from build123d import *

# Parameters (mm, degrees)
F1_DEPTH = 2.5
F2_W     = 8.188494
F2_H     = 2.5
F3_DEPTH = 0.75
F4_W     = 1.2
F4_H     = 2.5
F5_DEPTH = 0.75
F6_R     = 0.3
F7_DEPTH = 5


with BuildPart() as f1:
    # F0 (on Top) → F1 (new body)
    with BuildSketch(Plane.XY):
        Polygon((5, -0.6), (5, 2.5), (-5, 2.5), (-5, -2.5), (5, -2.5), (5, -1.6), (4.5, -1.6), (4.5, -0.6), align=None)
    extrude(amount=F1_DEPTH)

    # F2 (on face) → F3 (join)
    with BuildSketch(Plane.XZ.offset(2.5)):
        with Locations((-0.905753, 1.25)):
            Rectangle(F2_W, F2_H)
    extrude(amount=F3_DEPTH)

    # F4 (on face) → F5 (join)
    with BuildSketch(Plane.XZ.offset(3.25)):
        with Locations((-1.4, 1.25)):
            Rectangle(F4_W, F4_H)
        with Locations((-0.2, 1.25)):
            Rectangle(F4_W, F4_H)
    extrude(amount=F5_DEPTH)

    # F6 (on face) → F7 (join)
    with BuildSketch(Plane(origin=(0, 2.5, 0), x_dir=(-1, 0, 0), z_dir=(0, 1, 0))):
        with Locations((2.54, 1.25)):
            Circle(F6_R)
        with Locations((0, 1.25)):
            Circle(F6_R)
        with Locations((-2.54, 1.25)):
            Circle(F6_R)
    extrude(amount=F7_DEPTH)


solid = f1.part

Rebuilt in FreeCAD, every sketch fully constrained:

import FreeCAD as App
import Part
import Sketcher
Q = App.Units.Quantity

doc = App.newDocument("Part")
body = doc.addObject("PartDesign::Body", "Body")

sketch1 = body.newObject("Sketcher::SketchObject", "Sketch")
sketch1.AttachmentSupport = (doc.getObject("XY_Plane"), [""])
sketch1.MapMode = "FlatFace"
sketch1.addGeometry(Part.LineSegment(App.Vector(5, -0.6, 0), App.Vector(5, 2.5, 0)), False)
sketch1.addGeometry(Part.LineSegment(App.Vector(5, 2.5, 0), App.Vector(-5, 2.5, 0)), False)
sketch1.addGeometry(Part.LineSegment(App.Vector(-5, 2.5, 0), App.Vector(-5, -2.5, 0)), False)
sketch1.addGeometry(Part.LineSegment(App.Vector(-5, -2.5, 0), App.Vector(5, -2.5, 0)), False)
sketch1.addGeometry(Part.LineSegment(App.Vector(5, -2.5, 0), App.Vector(5, -1.6, 0)), False)
sketch1.addGeometry(Part.LineSegment(App.Vector(5, -1.6, 0), App.Vector(4.5, -1.6, 0)), False)
sketch1.addGeometry(Part.LineSegment(App.Vector(4.5, -1.6, 0), App.Vector(4.5, -0.6, 0)), False)
sketch1.addGeometry(Part.LineSegment(App.Vector(4.5, -0.6, 0), App.Vector(5, -0.6, 0)), False)
sketch1.addConstraint(Sketcher.Constraint("Coincident", 0, 2, 1, 1))
sketch1.addConstraint(Sketcher.Constraint("Coincident", 1, 2, 2, 1))
sketch1.addConstraint(Sketcher.Constraint("Coincident", 2, 2, 3, 1))
sketch1.addConstraint(Sketcher.Constraint("Coincident", 3, 2, 4, 1))
sketch1.addConstraint(Sketcher.Constraint("Coincident", 4, 2, 5, 1))
sketch1.addConstraint(Sketcher.Constraint("Coincident", 5, 2, 6, 1))
sketch1.addConstraint(Sketcher.Constraint("Coincident", 6, 2, 7, 1))
sketch1.addConstraint(Sketcher.Constraint("Coincident", 7, 2, 0, 1))
sketch1.addConstraint(Sketcher.Constraint("Vertical", 0))
sketch1.addConstraint(Sketcher.Constraint("Horizontal", 1))
sketch1.addConstraint(Sketcher.Constraint("Vertical", 2))
sketch1.addConstraint(Sketcher.Constraint("Horizontal", 3))
sketch1.addConstraint(Sketcher.Constraint("Vertical", 4))
sketch1.addConstraint(Sketcher.Constraint("Horizontal", 5))
sketch1.addConstraint(Sketcher.Constraint("Vertical", 6))
sketch1.addConstraint(Sketcher.Constraint("Horizontal", 7))
sketch1.addConstraint(Sketcher.Constraint("Symmetric", 0, 2, 2, 2, -1, 1))
sketch1.addConstraint(Sketcher.Constraint("Vertical", 0, 2, 3, 2))
sketch1.addConstraint(Sketcher.Constraint("DistanceX", 1, 2, 1, 1, Q("10 mm")))
sketch1.addConstraint(Sketcher.Constraint("DistanceY", 2, 2, 2, 1, Q("5 mm")))
sketch1.addConstraint(Sketcher.Constraint("DistanceY", 6, 1, 6, 2, Q("1 mm")))
sketch1.addConstraint(Sketcher.Constraint("DistanceX", 5, 2, 5, 1, Q("0.5 mm")))
sketch1.addConstraint(Sketcher.Constraint("DistanceY", 0, 1, 0, 2, Q("3.1 mm")))
pad1 = body.newObject("PartDesign::Pad", "Pad")
pad1.Profile = sketch1
pad1.Length = 2.5

sketch2 = body.newObject("Sketcher::SketchObject", "Sketch001")
sketch2.AttachmentSupport = (doc.getObject("XZ_Plane"), [""])
sketch2.MapMode = "FlatFace"
sketch2.AttachmentOffset = App.Placement(App.Vector(0, 0, 2.5), App.Rotation())
sketch2.addGeometry(Part.LineSegment(App.Vector(-5, 2.5, 0), App.Vector(-5, 0, 0)), False)
sketch2.addGeometry(Part.LineSegment(App.Vector(-5, 0, 0), App.Vector(3.2, 0, 0)), False)
sketch2.addGeometry(Part.LineSegment(App.Vector(3.2, 0, 0), App.Vector(3.2, 2.5, 0)), False)
sketch2.addGeometry(Part.LineSegment(App.Vector(3.2, 2.5, 0), App.Vector(-5, 2.5, 0)), False)
sketch2.addConstraint(Sketcher.Constraint("Coincident", 0, 2, 1, 1))
sketch2.addConstraint(Sketcher.Constraint("Coincident", 1, 2, 2, 1))
sketch2.addConstraint(Sketcher.Constraint("Coincident", 2, 2, 3, 1))
sketch2.addConstraint(Sketcher.Constraint("Coincident", 3, 2, 0, 1))
sketch2.addConstraint(Sketcher.Constraint("Vertical", 0))
sketch2.addConstraint(Sketcher.Constraint("Horizontal", 1))
sketch2.addConstraint(Sketcher.Constraint("Vertical", 2))
sketch2.addConstraint(Sketcher.Constraint("Horizontal", 3))
sketch2.addConstraint(Sketcher.Constraint("PointOnObject", 0, 2, -1))
sketch2.addConstraint(Sketcher.Constraint("DistanceY", 0, 2, 0, 1, Q("2.5 mm")))
sketch2.addConstraint(Sketcher.Constraint("DistanceX", 0, 2, -1, 1, Q("5 mm")))
sketch2.addConstraint(Sketcher.Constraint("DistanceX", 1, 1, 1, 2, Q("8.188494 mm")))
pad2 = body.newObject("PartDesign::Pad", "Pad001")
pad2.Profile = sketch2
pad2.Length = 0.75

sketch3 = body.newObject("Sketcher::SketchObject", "Sketch002")
sketch3.AttachmentSupport = (doc.getObject("XZ_Plane"), [""])
sketch3.MapMode = "FlatFace"
sketch3.AttachmentOffset = App.Placement(App.Vector(0, 0, 3.25), App.Rotation())
sketch3.addGeometry(Part.LineSegment(App.Vector(-2, 2.5, 0), App.Vector(-2, 0, 0)), False)
sketch3.addGeometry(Part.LineSegment(App.Vector(-2, 0, 0), App.Vector(0.4, 0, 0)), False)
sketch3.addGeometry(Part.LineSegment(App.Vector(0.4, 0, 0), App.Vector(0.4, 2.5, 0)), False)
sketch3.addGeometry(Part.LineSegment(App.Vector(0.4, 2.5, 0), App.Vector(-2, 2.5, 0)), False)
sketch3.addConstraint(Sketcher.Constraint("Coincident", 0, 2, 1, 1))
sketch3.addConstraint(Sketcher.Constraint("Coincident", 1, 2, 2, 1))
sketch3.addConstraint(Sketcher.Constraint("Coincident", 2, 2, 3, 1))
sketch3.addConstraint(Sketcher.Constraint("Coincident", 3, 2, 0, 1))
sketch3.addConstraint(Sketcher.Constraint("Vertical", 0))
sketch3.addConstraint(Sketcher.Constraint("Horizontal", 1))
sketch3.addConstraint(Sketcher.Constraint("Vertical", 2))
sketch3.addConstraint(Sketcher.Constraint("Horizontal", 3))
sketch3.addConstraint(Sketcher.Constraint("PointOnObject", 0, 2, -1))
sketch3.addConstraint(Sketcher.Constraint("DistanceX", 1, 1, 1, 2, Q("2.4 mm")))
sketch3.addConstraint(Sketcher.Constraint("DistanceY", 0, 2, 0, 1, Q("2.5 mm")))
sketch3.addConstraint(Sketcher.Constraint("DistanceX", 0, 2, -1, 1, Q("2 mm")))
pad3 = body.newObject("PartDesign::Pad", "Pad002")
pad3.Profile = sketch3
pad3.Length = 0.75

sketch4 = body.newObject("Sketcher::SketchObject", "Sketch003")
sketch4.AttachmentSupport = (doc.getObject("XZ_Plane"), [""])
sketch4.MapMode = "FlatFace"
sketch4.AttachmentOffset = App.Placement(App.Vector(0, 0, -2.5), App.Rotation())
sketch4.addGeometry(Part.Circle(App.Vector(-2.54, 1.25, 0), App.Vector(0, 0, 1), 0.3), False)
sketch4.addGeometry(Part.Circle(App.Vector(0, 1.25, 0), App.Vector(0, 0, 1), 0.3), False)
sketch4.addGeometry(Part.Circle(App.Vector(2.54, 1.25, 0), App.Vector(0, 0, 1), 0.3), False)
sketch4.addConstraint(Sketcher.Constraint("Equal", 0, 1))
sketch4.addConstraint(Sketcher.Constraint("Equal", 1, 2))
sketch4.addConstraint(Sketcher.Constraint("Symmetric", 0, 3, 2, 3, -2))
sketch4.addConstraint(Sketcher.Constraint("PointOnObject", 1, 3, -2))
sketch4.addConstraint(Sketcher.Constraint("Horizontal", 0, 3, 1, 3))
sketch4.addConstraint(Sketcher.Constraint("Diameter", 0, Q("0.6 mm")))
sketch4.addConstraint(Sketcher.Constraint("DistanceX", 0, 3, -1, 1, Q("2.54 mm")))
sketch4.addConstraint(Sketcher.Constraint("DistanceY", -1, 1, 0, 3, Q("1.25 mm")))
pad4 = body.newObject("PartDesign::Pad", "Pad003")
pad4.Profile = sketch4
pad4.Length = 5
pad4.Reversed = True

doc.recompute()
